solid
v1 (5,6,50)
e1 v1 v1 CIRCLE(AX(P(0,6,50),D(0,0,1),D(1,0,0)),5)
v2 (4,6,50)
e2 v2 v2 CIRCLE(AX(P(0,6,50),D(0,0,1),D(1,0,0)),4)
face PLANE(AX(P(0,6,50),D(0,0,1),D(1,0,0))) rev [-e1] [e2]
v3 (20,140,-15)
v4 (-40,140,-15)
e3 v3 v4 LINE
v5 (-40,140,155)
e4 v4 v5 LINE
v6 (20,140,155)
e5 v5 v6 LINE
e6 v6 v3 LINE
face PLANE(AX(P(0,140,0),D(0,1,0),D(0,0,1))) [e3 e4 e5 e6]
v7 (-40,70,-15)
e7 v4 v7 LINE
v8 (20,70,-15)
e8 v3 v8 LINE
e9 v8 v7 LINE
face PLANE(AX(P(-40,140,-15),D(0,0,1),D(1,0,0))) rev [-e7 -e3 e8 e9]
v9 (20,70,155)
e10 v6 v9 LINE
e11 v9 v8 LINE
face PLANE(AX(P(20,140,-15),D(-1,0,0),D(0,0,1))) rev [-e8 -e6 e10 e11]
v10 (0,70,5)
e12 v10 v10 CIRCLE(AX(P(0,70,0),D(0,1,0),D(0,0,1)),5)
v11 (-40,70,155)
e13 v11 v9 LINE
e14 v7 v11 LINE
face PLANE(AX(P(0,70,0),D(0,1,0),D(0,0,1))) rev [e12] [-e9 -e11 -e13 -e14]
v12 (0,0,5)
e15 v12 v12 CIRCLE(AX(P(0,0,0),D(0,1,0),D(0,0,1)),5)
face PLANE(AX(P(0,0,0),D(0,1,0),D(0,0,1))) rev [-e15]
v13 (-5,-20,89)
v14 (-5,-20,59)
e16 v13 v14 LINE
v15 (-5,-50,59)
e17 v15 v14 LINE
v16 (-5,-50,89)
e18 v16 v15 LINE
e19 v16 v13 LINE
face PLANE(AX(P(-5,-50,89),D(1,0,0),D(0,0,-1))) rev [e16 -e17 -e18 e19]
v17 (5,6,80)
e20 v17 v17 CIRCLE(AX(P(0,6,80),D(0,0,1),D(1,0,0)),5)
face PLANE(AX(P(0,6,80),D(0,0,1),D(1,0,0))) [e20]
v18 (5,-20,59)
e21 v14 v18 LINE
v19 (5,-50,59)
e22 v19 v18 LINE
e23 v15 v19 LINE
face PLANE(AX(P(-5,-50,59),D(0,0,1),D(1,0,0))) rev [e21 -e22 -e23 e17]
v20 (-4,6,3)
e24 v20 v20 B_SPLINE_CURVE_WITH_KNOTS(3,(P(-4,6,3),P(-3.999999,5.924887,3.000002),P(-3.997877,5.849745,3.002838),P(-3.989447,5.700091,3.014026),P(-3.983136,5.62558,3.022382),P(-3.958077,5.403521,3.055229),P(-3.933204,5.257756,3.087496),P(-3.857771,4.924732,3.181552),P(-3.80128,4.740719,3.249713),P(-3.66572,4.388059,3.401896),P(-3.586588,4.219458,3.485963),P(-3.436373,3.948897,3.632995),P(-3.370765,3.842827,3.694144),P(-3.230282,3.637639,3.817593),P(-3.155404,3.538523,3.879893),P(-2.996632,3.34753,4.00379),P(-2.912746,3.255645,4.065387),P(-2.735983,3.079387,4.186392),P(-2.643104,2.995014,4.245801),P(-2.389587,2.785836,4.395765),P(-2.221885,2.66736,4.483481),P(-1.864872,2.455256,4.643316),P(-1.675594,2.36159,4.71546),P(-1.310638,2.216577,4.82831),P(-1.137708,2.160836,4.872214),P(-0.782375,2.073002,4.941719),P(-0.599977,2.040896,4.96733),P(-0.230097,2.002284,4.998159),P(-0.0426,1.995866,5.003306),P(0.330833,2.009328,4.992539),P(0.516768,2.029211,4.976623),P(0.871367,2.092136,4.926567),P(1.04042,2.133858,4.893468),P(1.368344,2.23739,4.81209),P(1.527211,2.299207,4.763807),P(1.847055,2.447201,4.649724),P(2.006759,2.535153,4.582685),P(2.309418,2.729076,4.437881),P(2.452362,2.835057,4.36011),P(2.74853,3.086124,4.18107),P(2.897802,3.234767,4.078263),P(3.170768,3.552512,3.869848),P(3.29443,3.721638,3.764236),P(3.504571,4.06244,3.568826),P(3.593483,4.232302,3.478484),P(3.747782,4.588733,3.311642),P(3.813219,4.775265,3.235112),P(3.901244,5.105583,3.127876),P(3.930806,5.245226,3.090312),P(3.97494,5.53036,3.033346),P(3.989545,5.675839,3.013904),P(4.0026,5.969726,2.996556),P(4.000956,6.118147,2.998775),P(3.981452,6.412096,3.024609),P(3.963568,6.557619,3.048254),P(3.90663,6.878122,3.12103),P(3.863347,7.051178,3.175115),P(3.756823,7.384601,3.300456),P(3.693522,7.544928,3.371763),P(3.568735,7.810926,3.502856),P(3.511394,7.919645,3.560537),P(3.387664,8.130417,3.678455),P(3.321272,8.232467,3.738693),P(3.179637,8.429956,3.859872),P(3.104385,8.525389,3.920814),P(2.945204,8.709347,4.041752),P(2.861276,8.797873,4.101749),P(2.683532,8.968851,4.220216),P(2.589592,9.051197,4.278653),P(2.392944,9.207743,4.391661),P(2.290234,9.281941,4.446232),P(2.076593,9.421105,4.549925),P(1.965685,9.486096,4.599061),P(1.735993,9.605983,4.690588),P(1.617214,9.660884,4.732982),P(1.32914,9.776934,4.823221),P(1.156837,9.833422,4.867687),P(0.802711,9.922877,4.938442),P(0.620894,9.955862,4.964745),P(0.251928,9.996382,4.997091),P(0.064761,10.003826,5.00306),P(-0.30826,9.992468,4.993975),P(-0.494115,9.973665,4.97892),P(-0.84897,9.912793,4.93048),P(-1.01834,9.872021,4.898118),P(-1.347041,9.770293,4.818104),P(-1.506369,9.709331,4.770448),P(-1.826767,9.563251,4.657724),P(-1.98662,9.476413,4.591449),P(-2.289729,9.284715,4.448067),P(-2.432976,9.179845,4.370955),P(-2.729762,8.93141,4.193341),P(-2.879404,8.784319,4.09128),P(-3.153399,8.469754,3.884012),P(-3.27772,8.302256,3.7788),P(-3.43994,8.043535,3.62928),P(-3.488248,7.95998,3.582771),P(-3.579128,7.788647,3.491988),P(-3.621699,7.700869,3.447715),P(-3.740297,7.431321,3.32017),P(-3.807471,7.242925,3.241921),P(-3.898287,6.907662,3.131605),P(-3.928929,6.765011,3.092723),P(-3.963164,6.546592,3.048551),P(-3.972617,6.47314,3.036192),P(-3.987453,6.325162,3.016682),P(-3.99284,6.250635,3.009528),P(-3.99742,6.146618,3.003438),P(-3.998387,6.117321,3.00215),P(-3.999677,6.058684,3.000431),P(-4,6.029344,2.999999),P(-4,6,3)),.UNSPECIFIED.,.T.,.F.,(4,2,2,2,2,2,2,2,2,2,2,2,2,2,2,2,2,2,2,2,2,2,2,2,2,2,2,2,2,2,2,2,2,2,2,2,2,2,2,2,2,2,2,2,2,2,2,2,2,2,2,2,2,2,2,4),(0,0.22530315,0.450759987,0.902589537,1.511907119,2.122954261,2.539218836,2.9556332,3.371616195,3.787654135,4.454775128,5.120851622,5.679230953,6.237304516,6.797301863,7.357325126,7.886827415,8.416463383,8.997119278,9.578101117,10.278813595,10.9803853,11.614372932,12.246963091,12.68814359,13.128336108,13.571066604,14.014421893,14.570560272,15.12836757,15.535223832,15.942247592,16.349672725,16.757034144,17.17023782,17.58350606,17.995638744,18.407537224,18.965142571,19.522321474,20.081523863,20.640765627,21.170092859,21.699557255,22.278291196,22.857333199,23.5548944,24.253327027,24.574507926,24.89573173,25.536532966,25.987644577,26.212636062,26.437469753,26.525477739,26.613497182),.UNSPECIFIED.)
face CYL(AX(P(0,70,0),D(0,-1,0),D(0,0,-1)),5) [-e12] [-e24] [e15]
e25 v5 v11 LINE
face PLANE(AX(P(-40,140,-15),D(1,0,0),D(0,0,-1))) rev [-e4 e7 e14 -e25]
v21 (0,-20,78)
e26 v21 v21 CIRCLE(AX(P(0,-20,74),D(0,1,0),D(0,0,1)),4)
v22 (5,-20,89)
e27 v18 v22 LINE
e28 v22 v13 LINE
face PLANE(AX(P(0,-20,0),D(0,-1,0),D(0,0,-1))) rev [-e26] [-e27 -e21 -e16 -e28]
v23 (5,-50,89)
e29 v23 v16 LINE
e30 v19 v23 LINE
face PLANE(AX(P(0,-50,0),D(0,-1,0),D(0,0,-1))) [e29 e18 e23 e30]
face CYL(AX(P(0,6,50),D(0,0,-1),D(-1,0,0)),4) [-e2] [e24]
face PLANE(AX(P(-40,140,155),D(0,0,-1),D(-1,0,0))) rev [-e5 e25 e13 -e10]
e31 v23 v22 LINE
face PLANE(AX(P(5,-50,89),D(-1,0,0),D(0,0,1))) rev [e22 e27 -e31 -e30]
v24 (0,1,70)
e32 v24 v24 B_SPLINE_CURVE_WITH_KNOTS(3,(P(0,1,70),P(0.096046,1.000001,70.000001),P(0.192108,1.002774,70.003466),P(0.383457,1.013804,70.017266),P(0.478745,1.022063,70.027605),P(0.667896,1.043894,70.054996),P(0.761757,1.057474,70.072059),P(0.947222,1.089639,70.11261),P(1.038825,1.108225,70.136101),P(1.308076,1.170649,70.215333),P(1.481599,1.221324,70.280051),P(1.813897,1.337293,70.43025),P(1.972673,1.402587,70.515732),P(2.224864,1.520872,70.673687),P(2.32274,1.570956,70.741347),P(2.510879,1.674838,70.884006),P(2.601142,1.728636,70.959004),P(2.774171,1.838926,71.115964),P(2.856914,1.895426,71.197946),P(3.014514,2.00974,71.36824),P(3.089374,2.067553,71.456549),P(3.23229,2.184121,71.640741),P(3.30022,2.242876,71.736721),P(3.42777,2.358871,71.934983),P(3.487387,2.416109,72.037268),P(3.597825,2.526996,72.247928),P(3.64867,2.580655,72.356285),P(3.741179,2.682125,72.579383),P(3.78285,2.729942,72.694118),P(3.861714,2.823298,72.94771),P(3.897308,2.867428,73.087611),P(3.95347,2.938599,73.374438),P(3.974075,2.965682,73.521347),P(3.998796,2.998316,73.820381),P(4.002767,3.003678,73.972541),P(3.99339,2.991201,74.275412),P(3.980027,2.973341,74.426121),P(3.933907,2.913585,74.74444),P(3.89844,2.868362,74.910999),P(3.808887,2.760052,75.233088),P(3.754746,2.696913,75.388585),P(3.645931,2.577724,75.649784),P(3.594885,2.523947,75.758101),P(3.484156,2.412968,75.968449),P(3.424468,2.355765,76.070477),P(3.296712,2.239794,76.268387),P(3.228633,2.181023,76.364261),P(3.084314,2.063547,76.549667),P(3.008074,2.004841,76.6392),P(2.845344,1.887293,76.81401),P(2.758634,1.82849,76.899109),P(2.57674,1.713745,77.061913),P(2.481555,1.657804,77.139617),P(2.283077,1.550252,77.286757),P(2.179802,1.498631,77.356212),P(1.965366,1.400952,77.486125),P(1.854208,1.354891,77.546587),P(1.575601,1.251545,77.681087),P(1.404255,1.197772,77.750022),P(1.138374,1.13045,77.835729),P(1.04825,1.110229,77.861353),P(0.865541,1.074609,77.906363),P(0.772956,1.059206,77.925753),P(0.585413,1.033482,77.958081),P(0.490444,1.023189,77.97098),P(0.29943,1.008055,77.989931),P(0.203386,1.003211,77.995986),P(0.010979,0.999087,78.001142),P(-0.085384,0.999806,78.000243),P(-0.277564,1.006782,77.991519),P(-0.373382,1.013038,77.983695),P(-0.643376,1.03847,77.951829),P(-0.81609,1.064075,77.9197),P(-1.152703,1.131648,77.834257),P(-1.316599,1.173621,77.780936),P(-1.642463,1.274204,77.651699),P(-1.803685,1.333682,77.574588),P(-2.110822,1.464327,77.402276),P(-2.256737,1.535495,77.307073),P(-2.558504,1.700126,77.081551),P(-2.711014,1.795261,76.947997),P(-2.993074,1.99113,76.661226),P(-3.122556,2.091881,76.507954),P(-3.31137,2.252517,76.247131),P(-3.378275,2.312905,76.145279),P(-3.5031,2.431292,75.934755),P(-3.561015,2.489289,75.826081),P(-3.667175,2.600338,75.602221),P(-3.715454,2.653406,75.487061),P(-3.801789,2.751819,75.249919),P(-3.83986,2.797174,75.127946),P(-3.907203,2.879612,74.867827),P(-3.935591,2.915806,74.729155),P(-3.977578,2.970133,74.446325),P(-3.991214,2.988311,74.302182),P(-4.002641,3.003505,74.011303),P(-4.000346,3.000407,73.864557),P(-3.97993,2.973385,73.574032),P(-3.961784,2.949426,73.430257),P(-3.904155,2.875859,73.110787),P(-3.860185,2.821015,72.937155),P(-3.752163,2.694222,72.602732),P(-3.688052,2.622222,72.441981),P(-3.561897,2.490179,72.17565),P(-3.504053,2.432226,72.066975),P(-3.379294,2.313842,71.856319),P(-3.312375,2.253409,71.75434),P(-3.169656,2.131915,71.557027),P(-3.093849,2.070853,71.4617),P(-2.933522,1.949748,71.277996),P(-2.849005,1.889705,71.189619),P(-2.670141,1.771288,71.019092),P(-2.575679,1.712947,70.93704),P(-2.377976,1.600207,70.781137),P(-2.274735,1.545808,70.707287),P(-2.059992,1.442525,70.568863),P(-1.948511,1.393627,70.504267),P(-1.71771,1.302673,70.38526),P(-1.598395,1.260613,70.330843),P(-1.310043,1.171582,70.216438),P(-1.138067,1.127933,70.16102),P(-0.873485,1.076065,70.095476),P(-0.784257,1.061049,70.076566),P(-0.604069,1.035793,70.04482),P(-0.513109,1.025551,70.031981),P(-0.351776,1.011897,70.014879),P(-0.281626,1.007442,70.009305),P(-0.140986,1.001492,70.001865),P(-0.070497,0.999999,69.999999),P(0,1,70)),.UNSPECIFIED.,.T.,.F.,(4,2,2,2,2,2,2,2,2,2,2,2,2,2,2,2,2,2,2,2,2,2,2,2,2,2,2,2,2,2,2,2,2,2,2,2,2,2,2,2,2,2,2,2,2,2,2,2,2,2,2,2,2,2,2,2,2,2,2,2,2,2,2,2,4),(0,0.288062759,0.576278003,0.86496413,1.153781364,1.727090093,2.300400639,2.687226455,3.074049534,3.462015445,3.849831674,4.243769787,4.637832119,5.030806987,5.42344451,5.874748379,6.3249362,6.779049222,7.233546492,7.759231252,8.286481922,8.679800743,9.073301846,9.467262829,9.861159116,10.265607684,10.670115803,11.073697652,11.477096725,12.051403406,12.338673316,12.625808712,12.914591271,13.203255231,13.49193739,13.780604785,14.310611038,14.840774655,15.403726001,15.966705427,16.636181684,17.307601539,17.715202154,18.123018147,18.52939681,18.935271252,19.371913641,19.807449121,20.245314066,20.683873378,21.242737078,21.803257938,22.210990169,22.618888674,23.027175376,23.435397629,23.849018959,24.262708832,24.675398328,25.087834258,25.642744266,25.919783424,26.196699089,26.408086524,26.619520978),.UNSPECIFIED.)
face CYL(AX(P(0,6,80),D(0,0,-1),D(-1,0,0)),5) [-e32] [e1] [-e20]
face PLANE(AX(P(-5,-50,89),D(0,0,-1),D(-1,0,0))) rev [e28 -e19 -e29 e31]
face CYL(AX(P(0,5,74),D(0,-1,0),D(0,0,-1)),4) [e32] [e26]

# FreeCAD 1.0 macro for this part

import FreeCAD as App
import Part
import Sketcher
from FreeCAD import Vector

doc = App.newDocument("Part")
params = doc.addObject("Spreadsheet::Sheet", "Params")
for row, (alias, value) in enumerate([
    ("sketch1_diameter", "10 mm"),
    ("pad1_length", "70 mm"),
    ("sketch2_diameter", "8 mm"),
    ("pad2_length", "50 mm"),
    ("sketch3_diameter", "10 mm"),
    ("pad3_length", "30 mm"),
    ("sketch4_diameter", "8 mm"),
    ("pad4_length", "5 mm"),
    ("pad4_length2", "20 mm"),
    ("sketch5_width", "10 mm"),
    ("sketch5_height", "30 mm"),
    ("pad5_length", "30 mm"),
    ("sketch6_width", "60 mm"),
    ("sketch6_height", "170 mm"),
    ("pad6_length", "70 mm"),
], start=1):
    params.set(f"A{row}", alias)
    params.set(f"B{row}", "=" + value)
    params.setAlias(f"B{row}", alias)

body = doc.addObject("PartDesign::Body", "Body")

# Sketch on XZ plane
sketch1 = doc.addObject("Sketcher::SketchObject", "Sketch")
body.addObject(sketch1)
sketch1.AttachmentSupport = (doc.XZ_Plane, [""])
sketch1.MapMode = "FlatFace"
sketch1.addGeometry(Part.Circle(Vector(0, 0, 0), Vector(0, 0, 1), 5), False)
sketch1.addConstraint([
    Sketcher.Constraint("Coincident", 0, 3, -1, 1),
    Sketcher.Constraint("Diameter", 0, 10.0),
])
sketch1.setExpression("Constraints[1]", "Params.sketch1_diameter")
pad1 = doc.addObject("PartDesign::Pad", "Pad")
body.addObject(pad1)
pad1.Profile = sketch1
pad1.setExpression("Length", "Params.pad1_length")
pad1.Reversed = True

# Sketch on XY plane
sketch2 = doc.addObject("Sketcher::SketchObject", "Sketch001")
body.addObject(sketch2)
sketch2.AttachmentSupport = (doc.XY_Plane, [""])
sketch2.MapMode = "FlatFace"
sketch2.addGeometry(Part.Circle(Vector(0, 6, 0), Vector(0, 0, 1), 4), False)
sketch2.addConstraint([
    Sketcher.Constraint("PointOnObject", 0, 3, -2),
    Sketcher.Constraint("Diameter", 0, 8.0),
    Sketcher.Constraint("DistanceY", -1, 1, 0, 3, 6.0),
])
sketch2.setExpression("Constraints[1]", "Params.sketch2_diameter")
pad2 = doc.addObject("PartDesign::Pad", "Pad001")
body.addObject(pad2)
pad2.Profile = sketch2
pad2.setExpression("Length", "Params.pad2_length")

# Sketch on XY plane
sketch3 = doc.addObject("Sketcher::SketchObject", "Sketch002")
body.addObject(sketch3)
sketch3.AttachmentSupport = (doc.XY_Plane, [""])
sketch3.MapMode = "FlatFace"
sketch3.AttachmentOffset = App.Placement(Vector(0, 0, 50), App.Rotation())
sketch3.addGeometry(Part.Circle(Vector(0, 6, 0), Vector(0, 0, 1), 5), False)
sketch3.addConstraint([
    Sketcher.Constraint("PointOnObject", 0, 3, -2),
    Sketcher.Constraint("Diameter", 0, 10.0),
    Sketcher.Constraint("DistanceY", -1, 1, 0, 3, 6.0),
])
sketch3.setExpression("Constraints[1]", "Params.sketch3_diameter")
pad3 = doc.addObject("PartDesign::Pad", "Pad002")
body.addObject(pad3)
pad3.Profile = sketch3
pad3.setExpression("Length", "Params.pad3_length")

# Sketch on XZ plane
sketch4 = doc.addObject("Sketcher::SketchObject", "Sketch003")
body.addObject(sketch4)
sketch4.AttachmentSupport = (doc.XZ_Plane, [""])
sketch4.MapMode = "FlatFace"
sketch4.addGeometry(Part.Circle(Vector(0, 74, 0), Vector(0, 0, 1), 4), False)
sketch4.addConstraint([
    Sketcher.Constraint("PointOnObject", 0, 3, -2),
    Sketcher.Constraint("Diameter", 0, 8.0),
    Sketcher.Constraint("DistanceY", -1, 1, 0, 3, 74.0),
])
sketch4.setExpression("Constraints[1]", "Params.sketch4_diameter")
pad4 = doc.addObject("PartDesign::Pad", "Pad003")
body.addObject(pad4)
pad4.Profile = sketch4
pad4.Type = "TwoLengths"
pad4.setExpression("Length", "Params.pad4_length")
pad4.setExpression("Length2", "Params.pad4_length2")
pad4.Reversed = True

# Sketch on XZ plane
sketch5 = doc.addObject("Sketcher::SketchObject", "Sketch004")
body.addObject(sketch5)
sketch5.AttachmentSupport = (doc.XZ_Plane, [""])
sketch5.MapMode = "FlatFace"
sketch5.AttachmentOffset = App.Placement(Vector(0, 0, 20), App.Rotation())
sketch5.addGeometry([
    Part.LineSegment(Vector(-5, 89, 0), Vector(-5, 59, 0)),
    Part.LineSegment(Vector(-5, 59, 0), Vector(5, 59, 0)),
    Part.LineSegment(Vector(5, 59, 0), Vector(5, 89, 0)),
    Part.LineSegment(Vector(5, 89, 0), Vector(-5, 89, 0)),
], False)
sketch5.addConstraint([
    Sketcher.Constraint("Coincident", 0, 2, 1, 1),
    Sketcher.Constraint("Coincident", 1, 2, 2, 1),
    Sketcher.Constraint("Coincident", 2, 2, 3, 1),
    Sketcher.Constraint("Coincident", 3, 2, 0, 1),
    Sketcher.Constraint("Vertical", 0),
    Sketcher.Constraint("Horizontal", 1),
    Sketcher.Constraint("Vertical", 2),
    Sketcher.Constraint("Horizontal", 3),
    Sketcher.Constraint("DistanceX", 1, 1, 1, 2, 10.0),
    Sketcher.Constraint("DistanceY", 0, 2, 0, 1, 30.0),
    Sketcher.Constraint("DistanceX", 0, 2, -1, 1, 5.0),
    Sketcher.Constraint("DistanceY", -1, 1, 0, 2, 59.0),
])
sketch5.setExpression("Constraints[8]", "Params.sketch5_width")
sketch5.setExpression("Constraints[9]", "Params.sketch5_height")
pad5 = doc.addObject("PartDesign::Pad", "Pad004")
body.addObject(pad5)
pad5.Profile = sketch5
pad5.setExpression("Length", "Params.pad5_length")

# Sketch on XZ plane
sketch6 = doc.addObject("Sketcher::SketchObject", "Sketch005")
body.addObject(sketch6)
sketch6.AttachmentSupport = (doc.XZ_Plane, [""])
sketch6.MapMode = "FlatFace"
sketch6.AttachmentOffset = App.Placement(Vector(0, 0, -70), App.Rotation())
sketch6.addGeometry([
    Part.LineSegment(Vector(-40, -15, 0), Vector(-40, 155, 0)),
    Part.LineSegment(Vector(-40, 155, 0), Vector(20, 155, 0)),
    Part.LineSegment(Vector(20, 155, 0), Vector(20, -15, 0)),
    Part.LineSegment(Vector(20, -15, 0), Vector(-40, -15, 0)),
], False)
sketch6.addConstraint([
    Sketcher.Constraint("Coincident", 0, 2, 1, 1),
    Sketcher.Constraint("Coincident", 1, 2, 2, 1),
    Sketcher.Constraint("Coincident", 2, 2, 3, 1),
    Sketcher.Constraint("Coincident", 3, 2, 0, 1),
    Sketcher.Constraint("Vertical", 0),
    Sketcher.Constraint("Horizontal", 1),
    Sketcher.Constraint("Vertical", 2),
    Sketcher.Constraint("Horizontal", 3),
    Sketcher.Constraint("DistanceX", 1, 1, 1, 2, 60.0),
    Sketcher.Constraint("DistanceY", 0, 1, 0, 2, 170.0),
    Sketcher.Constraint("DistanceX", 0, 2, -1, 1, 40.0),
    Sketcher.Constraint("DistanceY", -1, 1, 0, 2, 155.0),
])
sketch6.setExpression("Constraints[8]", "Params.sketch6_width")
sketch6.setExpression("Constraints[9]", "Params.sketch6_height")
pad6 = doc.addObject("PartDesign::Pad", "Pad005")
body.addObject(pad6)
pad6.Profile = sketch6
pad6.setExpression("Length", "Params.pad6_length")
pad6.Reversed = True

doc.recompute()
